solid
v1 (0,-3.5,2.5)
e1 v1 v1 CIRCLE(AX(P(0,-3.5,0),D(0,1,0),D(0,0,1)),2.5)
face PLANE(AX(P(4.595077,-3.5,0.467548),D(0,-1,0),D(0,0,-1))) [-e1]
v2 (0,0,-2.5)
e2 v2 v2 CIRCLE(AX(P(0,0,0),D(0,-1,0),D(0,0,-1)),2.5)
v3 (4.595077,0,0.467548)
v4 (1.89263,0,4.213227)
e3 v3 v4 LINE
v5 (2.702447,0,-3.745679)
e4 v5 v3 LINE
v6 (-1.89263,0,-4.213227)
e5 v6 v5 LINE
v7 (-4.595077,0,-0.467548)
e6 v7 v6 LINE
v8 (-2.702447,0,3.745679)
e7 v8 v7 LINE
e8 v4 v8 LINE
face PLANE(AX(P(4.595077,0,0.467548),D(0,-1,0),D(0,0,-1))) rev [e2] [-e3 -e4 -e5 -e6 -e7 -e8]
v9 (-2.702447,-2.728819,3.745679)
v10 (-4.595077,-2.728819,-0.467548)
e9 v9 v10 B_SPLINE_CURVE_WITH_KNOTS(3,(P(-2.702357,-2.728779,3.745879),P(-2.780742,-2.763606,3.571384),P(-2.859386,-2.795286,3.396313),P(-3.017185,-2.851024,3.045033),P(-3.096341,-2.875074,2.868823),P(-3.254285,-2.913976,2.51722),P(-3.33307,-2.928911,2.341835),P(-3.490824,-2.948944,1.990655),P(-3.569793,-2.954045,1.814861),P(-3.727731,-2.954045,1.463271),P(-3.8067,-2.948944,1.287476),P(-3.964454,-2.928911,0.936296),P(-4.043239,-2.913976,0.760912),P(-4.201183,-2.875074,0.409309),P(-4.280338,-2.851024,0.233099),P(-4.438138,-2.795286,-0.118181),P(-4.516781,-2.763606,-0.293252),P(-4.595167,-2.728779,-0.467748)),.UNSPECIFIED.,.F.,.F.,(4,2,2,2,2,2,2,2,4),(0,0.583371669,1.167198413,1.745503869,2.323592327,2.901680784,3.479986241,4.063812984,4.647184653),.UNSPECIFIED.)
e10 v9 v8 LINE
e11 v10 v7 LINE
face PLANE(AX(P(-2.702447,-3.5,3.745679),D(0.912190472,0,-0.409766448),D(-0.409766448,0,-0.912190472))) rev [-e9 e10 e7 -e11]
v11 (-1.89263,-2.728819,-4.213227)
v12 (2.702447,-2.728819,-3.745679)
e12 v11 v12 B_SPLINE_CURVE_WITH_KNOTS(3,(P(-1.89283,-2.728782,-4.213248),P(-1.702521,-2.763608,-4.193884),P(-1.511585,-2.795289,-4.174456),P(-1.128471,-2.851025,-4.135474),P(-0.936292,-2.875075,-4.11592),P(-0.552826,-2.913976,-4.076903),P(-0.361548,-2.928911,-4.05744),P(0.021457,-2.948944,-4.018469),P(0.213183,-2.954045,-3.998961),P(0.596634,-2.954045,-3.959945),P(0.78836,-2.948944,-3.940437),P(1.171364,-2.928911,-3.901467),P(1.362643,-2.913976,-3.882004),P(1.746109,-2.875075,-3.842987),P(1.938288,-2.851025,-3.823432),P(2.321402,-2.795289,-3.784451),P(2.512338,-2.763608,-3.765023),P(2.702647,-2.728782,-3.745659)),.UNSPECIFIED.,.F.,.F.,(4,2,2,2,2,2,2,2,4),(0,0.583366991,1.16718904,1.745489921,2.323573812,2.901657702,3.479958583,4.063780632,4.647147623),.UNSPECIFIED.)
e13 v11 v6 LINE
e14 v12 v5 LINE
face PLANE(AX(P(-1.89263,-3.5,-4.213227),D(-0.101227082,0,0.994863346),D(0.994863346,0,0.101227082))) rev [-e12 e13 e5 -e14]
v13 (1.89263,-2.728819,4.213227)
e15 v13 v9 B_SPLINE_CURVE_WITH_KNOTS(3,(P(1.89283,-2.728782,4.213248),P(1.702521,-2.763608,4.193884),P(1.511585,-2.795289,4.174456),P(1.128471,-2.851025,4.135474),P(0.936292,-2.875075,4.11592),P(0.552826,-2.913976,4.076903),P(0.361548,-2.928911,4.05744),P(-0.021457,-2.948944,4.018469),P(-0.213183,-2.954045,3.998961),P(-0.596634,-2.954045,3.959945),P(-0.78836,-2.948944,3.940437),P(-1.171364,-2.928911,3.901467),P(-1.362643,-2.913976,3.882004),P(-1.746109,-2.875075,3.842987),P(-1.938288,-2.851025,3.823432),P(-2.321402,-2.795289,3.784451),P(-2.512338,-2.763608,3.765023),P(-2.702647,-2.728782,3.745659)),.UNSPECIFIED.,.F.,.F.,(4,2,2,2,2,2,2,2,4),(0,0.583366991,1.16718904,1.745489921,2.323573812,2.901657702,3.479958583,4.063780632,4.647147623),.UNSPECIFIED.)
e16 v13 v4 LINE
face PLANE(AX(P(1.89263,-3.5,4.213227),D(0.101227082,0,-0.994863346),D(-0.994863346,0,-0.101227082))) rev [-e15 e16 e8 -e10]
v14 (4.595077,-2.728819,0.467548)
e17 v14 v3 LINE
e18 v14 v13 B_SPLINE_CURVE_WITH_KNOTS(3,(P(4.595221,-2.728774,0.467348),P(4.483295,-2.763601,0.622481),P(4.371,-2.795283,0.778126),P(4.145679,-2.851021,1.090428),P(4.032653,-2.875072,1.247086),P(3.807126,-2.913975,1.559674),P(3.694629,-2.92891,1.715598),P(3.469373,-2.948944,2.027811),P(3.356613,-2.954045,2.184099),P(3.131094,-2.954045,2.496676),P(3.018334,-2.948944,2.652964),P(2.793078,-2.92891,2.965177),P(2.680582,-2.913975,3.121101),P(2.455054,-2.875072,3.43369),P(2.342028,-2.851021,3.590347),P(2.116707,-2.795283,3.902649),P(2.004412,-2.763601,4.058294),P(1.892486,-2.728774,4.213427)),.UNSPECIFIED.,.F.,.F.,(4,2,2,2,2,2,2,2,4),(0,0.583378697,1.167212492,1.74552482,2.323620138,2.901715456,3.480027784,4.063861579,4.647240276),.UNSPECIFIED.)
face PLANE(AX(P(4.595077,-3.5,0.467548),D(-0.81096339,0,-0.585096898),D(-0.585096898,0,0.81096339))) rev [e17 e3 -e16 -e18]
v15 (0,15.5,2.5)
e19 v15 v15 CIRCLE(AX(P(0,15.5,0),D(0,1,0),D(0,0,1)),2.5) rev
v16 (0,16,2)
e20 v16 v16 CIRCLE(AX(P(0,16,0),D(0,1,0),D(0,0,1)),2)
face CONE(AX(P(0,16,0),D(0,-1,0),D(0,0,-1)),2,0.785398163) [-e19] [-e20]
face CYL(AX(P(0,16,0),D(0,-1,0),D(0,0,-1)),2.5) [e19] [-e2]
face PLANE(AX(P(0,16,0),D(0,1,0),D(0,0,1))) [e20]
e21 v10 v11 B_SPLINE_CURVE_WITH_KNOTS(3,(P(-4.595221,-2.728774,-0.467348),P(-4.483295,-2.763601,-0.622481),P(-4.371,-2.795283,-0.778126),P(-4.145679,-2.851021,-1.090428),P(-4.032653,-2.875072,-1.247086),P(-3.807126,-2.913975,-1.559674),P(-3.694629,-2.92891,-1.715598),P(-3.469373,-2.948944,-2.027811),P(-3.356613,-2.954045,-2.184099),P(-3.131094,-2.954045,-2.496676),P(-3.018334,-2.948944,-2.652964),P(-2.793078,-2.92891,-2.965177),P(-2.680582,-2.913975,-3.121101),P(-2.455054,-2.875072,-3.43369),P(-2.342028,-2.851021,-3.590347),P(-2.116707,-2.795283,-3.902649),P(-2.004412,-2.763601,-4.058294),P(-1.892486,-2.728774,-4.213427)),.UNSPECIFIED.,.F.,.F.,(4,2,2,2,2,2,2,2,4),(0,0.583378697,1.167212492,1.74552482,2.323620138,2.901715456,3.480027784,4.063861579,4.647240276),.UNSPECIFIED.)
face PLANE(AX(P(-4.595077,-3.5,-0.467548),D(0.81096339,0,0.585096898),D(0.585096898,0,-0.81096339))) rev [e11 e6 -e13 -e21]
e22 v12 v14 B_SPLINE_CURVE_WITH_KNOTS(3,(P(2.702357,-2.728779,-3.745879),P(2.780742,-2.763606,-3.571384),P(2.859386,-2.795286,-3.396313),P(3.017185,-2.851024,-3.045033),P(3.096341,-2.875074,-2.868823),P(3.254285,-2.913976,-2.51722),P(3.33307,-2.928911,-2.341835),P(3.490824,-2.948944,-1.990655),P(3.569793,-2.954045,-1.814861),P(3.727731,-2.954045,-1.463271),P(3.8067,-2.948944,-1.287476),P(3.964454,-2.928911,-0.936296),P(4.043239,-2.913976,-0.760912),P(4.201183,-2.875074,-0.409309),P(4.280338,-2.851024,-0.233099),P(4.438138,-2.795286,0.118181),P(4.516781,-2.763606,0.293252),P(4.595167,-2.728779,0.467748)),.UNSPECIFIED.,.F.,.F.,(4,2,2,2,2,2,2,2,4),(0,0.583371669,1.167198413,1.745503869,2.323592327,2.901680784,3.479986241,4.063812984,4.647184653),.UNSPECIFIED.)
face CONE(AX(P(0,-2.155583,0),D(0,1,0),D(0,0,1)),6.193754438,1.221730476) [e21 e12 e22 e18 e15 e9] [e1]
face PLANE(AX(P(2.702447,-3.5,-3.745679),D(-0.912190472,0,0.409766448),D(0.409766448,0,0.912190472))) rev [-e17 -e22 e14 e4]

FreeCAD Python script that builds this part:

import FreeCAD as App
import Part
import Sketcher
Q = App.Units.Quantity


def edges_at(feature, points):
    """Names of the edges that pass closest to the given points."""
    edges = feature.Shape.Edges
    near = lambda p: min(range(len(edges)), key=lambda i: edges[i].distToShape(Part.Vertex(*p))[0])
    return sorted({f"Edge{near(p) + 1}" for p in points})


def add_polygon(sketch, points):
    """Adds a closed chain of lines whose ends are joined by coincident constraints."""
    first, n = sketch.GeometryCount, len(points)
    for a, b in zip(points, points[1:] + points[:1]):
        sketch.addGeometry(Part.LineSegment(App.Vector(*a, 0), App.Vector(*b, 0)), False)
    for i in range(n):
        sketch.addConstraint(Sketcher.Constraint("Coincident", first + i, 2, first + (i + 1) % n, 1))

doc = App.newDocument("Part")
body = doc.addObject("PartDesign::Body", "Body")

# Sketch on XZ plane
sketch1 = body.newObject("Sketcher::SketchObject", "Sketch")
sketch1.AttachmentSupport = (doc.getObject("XZ_Plane"), [""])
sketch1.MapMode = "FlatFace"
sketch1.addGeometry(Part.Circle(App.Vector(0, 0, 0), App.Vector(0, 0, 1), 2.5), False)
sketch1.addConstraint([
    Sketcher.Constraint("Coincident", 0, 3, -1, 1),
    Sketcher.Constraint("Diameter", 0, Q("5 mm")),
])
pad1 = body.newObject("PartDesign::Pad", "Pad")
pad1.Profile = sketch1
pad1.Length = 16
pad1.Reversed = True
doc.recompute()

chamfer = body.newObject("PartDesign::Chamfer", "Chamfer")
chamfer.Base = (pad1, edges_at(pad1, [(0, 16, -2.5)]))
chamfer.Size = 0.5

# Sketch on XZ plane
sketch2 = body.newObject("Sketcher::SketchObject", "Sketch001")
sketch2.AttachmentSupport = (doc.getObject("XZ_Plane"), [""])
sketch2.MapMode = "FlatFace"
add_polygon(sketch2, [(4.595077, 0.467548), (1.89263, 4.213227), (-2.702447, 3.745679), (-4.595077, -0.467548), (-1.89263, -4.213227), (2.702447, -3.745679)])  # lines 0-5
sketch2.addConstraint([
    Sketcher.Constraint("Symmetric", 0, 2, 3, 2, -1, 1),
    Sketcher.Constraint("Symmetric", 1, 2, 4, 2, -1, 1),
    Sketcher.Constraint("Symmetric", 2, 2, 5, 2, -1, 1),
    Sketcher.Constraint("Equal", 0, 1),
    Sketcher.Constraint("Equal", 1, 2),
    Sketcher.Constraint("DistanceX", -1, 1, 0, 2, Q("1.89263 mm")),
    Sketcher.Constraint("DistanceY", -1, 1, 1, 2, Q("3.745679 mm")),
    Sketcher.Constraint("DistanceX", 2, 2, 1, 2, Q("1.89263 mm")),
    Sketcher.Constraint("DistanceY", 3, 2, 2, 2, Q("3.745679 mm")),
])
pad2 = body.newObject("PartDesign::Pad", "Pad001")
pad2.Profile = sketch2
pad2.Length = 3.5

# Sketch on YZ plane
sketch3 = body.newObject("Sketcher::SketchObject", "Sketch002")
sketch3.AttachmentSupport = (doc.getObject("YZ_Plane"), [""])
sketch3.MapMode = "FlatFace"
add_polygon(sketch3, [(-3.5, -2.5), (-3.5, 0), (-4.646797, 0), (-4.646797, -6.193754), (-2.155583, -6.193754)])  # lines 0-4
sketch3.addConstraint([
    Sketcher.Constraint("Vertical", 0),
    Sketcher.Constraint("Horizontal", 1),
    Sketcher.Constraint("Vertical", 2),
    Sketcher.Constraint("Horizontal", 3),
    Sketcher.Constraint("PointOnObject", 0, 2, -1),
    Sketcher.Constraint("Angle", 4, Q("110 deg")),
    Sketcher.Constraint("DistanceY", 0, 1, 0, 2, Q("2.5 mm")),
    Sketcher.Constraint("DistanceX", 0, 2, -1, 1, Q("3.5 mm")),
    Sketcher.Constraint("Distance", 4, Q("3.930811 mm")),
    Sketcher.Constraint("DistanceX", 1, 2, 1, 1, Q("1.146797 mm")),
])
groove = body.newObject("PartDesign::Groove", "Groove")
groove.Profile = sketch3
groove.ReferenceAxis = (sketch3, ["H_Axis"])
groove.Angle = 360

doc.recompute()
